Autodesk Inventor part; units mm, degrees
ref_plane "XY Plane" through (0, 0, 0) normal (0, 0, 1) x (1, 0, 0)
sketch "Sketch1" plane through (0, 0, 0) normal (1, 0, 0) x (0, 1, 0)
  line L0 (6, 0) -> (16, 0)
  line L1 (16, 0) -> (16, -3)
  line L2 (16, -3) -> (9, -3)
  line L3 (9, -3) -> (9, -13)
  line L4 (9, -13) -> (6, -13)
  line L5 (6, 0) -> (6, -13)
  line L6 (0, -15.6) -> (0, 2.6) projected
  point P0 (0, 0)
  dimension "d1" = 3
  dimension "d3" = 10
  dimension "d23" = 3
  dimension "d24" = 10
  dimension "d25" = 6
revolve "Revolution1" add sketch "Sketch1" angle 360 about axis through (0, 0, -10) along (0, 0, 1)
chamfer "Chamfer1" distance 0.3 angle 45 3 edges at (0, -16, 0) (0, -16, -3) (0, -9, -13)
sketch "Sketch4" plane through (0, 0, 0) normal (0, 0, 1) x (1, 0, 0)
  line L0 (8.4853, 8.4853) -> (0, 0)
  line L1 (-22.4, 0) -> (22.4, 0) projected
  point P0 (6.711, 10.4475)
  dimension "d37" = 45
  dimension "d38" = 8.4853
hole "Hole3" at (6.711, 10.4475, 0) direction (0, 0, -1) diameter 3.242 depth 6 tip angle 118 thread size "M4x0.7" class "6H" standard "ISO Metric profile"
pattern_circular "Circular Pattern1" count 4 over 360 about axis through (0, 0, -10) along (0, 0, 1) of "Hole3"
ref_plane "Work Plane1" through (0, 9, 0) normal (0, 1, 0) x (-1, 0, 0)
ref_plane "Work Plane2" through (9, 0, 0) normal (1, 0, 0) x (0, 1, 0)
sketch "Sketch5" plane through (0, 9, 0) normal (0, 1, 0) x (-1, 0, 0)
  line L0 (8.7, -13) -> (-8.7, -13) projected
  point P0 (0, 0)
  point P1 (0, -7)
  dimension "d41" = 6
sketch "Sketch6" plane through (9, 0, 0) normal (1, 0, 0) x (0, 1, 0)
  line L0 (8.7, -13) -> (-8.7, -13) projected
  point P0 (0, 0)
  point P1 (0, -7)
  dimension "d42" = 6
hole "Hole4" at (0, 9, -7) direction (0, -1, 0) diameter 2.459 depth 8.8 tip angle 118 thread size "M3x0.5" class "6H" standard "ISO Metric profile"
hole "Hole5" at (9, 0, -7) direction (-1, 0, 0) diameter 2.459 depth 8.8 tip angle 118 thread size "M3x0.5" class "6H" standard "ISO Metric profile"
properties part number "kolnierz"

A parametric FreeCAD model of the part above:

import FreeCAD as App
import Part
import Sketcher
from FreeCAD import Vector


def edges_at(feature, points):
    """Names of the edges that pass closest to the given points."""
    edges = feature.Shape.Edges
    near = lambda p: min(range(len(edges)), key=lambda i: edges[i].distToShape(Part.Vertex(*p))[0])
    return sorted({f"Edge{near(p) + 1}" for p in points})

doc = App.newDocument("Part")
body = doc.addObject("PartDesign::Body", "Body")

sketch1 = body.newObject("Sketcher::SketchObject", "Sketch")
sketch1.AttachmentSupport = (doc.getObject("YZ_Plane"), [""])
sketch1.MapMode = "FlatFace"
sketch1.addGeometry(Part.LineSegment(Vector(16, 0, 0), Vector(6, 0, 0)), False)
sketch1.addGeometry(Part.LineSegment(Vector(6, 0, 0), Vector(6, -13, 0)), False)
sketch1.addGeometry(Part.LineSegment(Vector(6, -13, 0), Vector(9, -13, 0)), False)
sketch1.addGeometry(Part.LineSegment(Vector(9, -13, 0), Vector(9, -3, 0)), False)
sketch1.addGeometry(Part.LineSegment(Vector(9, -3, 0), Vector(16, -3, 0)), False)
sketch1.addGeometry(Part.LineSegment(Vector(16, -3, 0), Vector(16, 0, 0)), False)
sketch1.addConstraint(Sketcher.Constraint("Coincident", 0, 2, 1, 1))
sketch1.addConstraint(Sketcher.Constraint("Coincident", 1, 2, 2, 1))
sketch1.addConstraint(Sketcher.Constraint("Coincident", 2, 2, 3, 1))
sketch1.addConstraint(Sketcher.Constraint("Coincident", 3, 2, 4, 1))
sketch1.addConstraint(Sketcher.Constraint("Coincident", 4, 2, 5, 1))
sketch1.addConstraint(Sketcher.Constraint("Coincident", 5, 2, 0, 1))
sketch1.addConstraint(Sketcher.Constraint("Horizontal", 0))
sketch1.addConstraint(Sketcher.Constraint("Vertical", 1))
sketch1.addConstraint(Sketcher.Constraint("Horizontal", 2))
sketch1.addConstraint(Sketcher.Constraint("Vertical", 3))
sketch1.addConstraint(Sketcher.Constraint("Horizontal", 4))
sketch1.addConstraint(Sketcher.Constraint("Vertical", 5))
sketch1.addConstraint(Sketcher.Constraint("PointOnObject", 0, 2, -1))
sketch1.addConstraint(Sketcher.Constraint("Equal", 0, 3))
sketch1.addConstraint(Sketcher.Constraint("Equal", 2, 5))
sketch1.addConstraint(Sketcher.Constraint("DistanceX", 0, 2, 0, 1, 10.0))
sketch1.addConstraint(Sketcher.Constraint("DistanceX", 2, 1, 2, 2, 3.0))
sketch1.addConstraint(Sketcher.Constraint("DistanceX", -1, 1, 0, 2, 6.0))
revolution = body.newObject("PartDesign::Revolution", "Revolution")
revolution.Profile = sketch1
revolution.ReferenceAxis = (sketch1, ["V_Axis"])
revolution.Angle = 360
doc.recompute()

chamfer = body.newObject("PartDesign::Chamfer", "Chamfer")
chamfer.Base = (revolution, edges_at(revolution, [(0, -16, 0), (0, -16, -3), (0, -9, -13)]))
chamfer.Size = 0.3

sketch2 = body.newObject("Sketcher::SketchObject", "Sketch001")
sketch2.AttachmentSupport = (doc.getObject("XY_Plane"), [""])
sketch2.MapMode = "FlatFace"
sketch2.addGeometry(Part.Circle(Vector(6.711, 10.4475, 0), Vector(0, 0, 1), 1.621), False)
sketch2.addConstraint(Sketcher.Constraint("Diameter", 0, 3.242))
sketch2.addConstraint(Sketcher.Constraint("DistanceX", -1, 1, 0, 3, 6.711))
sketch2.addConstraint(Sketcher.Constraint("DistanceY", -1, 1, 0, 3, 10.4475))
doc.recompute()
hole = body.newObject("PartDesign::Hole", "Hole")
hole.Profile = sketch2
hole.ThreadType = "None"
hole.Diameter = 3.242
hole.DepthType = "Dimension"
hole.Depth = 6
hole.DrillPoint = "Angled"
hole.DrillPointAngle = 118
doc.recompute()

polarpattern = body.newObject("PartDesign::PolarPattern", "PolarPattern")
polarpattern.Originals = [hole]
polarpattern.Axis = (doc.getObject("Z_Axis"), [""])
polarpattern.Angle = 360
polarpattern.Occurrences = 4
body.Tip = polarpattern

sketch3 = body.newObject("Sketcher::SketchObject", "Sketch002")
sketch3.AttachmentSupport = (doc.getObject("XZ_Plane"), [""])
sketch3.MapMode = "FlatFace"
sketch3.AttachmentOffset = App.Placement(Vector(0, 0, -9), App.Rotation())
sketch3.addGeometry(Part.Circle(Vector(0, -7, 0), Vector(0, 0, 1), 1.2295), False)
sketch3.addConstraint(Sketcher.Constraint("PointOnObject", 0, 3, -2))
sketch3.addConstraint(Sketcher.Constraint("Diameter", 0, 2.459))
sketch3.addConstraint(Sketcher.Constraint("DistanceY", 0, 3, -1, 1, 7.0))
doc.recompute()
hole2 = body.newObject("PartDesign::Hole", "Hole001")
hole2.Profile = sketch3
hole2.ThreadType = "None"
hole2.Diameter = 2.459
hole2.DepthType = "Dimension"
hole2.Depth = 8.8
hole2.DrillPoint = "Angled"
hole2.DrillPointAngle = 118
hole2.Reversed = True

sketch4 = body.newObject("Sketcher::SketchObject", "Sketch003")
sketch4.AttachmentSupport = (doc.getObject("YZ_Plane"), [""])
sketch4.MapMode = "FlatFace"
sketch4.AttachmentOffset = App.Placement(Vector(0, 0, 9), App.Rotation())
sketch4.addGeometry(Part.Circle(Vector(0, -7, 0), Vector(0, 0, 1), 1.2295), False)
sketch4.addConstraint(Sketcher.Constraint("PointOnObject", 0, 3, -2))
sketch4.addConstraint(Sketcher.Constraint("Diameter", 0, 2.459))
sketch4.addConstraint(Sketcher.Constraint("DistanceY", 0, 3, -1, 1, 7.0))
doc.recompute()
hole3 = body.newObject("PartDesign::Hole", "Hole002")
hole3.Profile = sketch4
hole3.ThreadType = "None"
hole3.Diameter = 2.459
hole3.DepthType = "Dimension"
hole3.Depth = 8.8
hole3.DrillPoint = "Angled"
hole3.DrillPointAngle = 118

doc.recompute()
